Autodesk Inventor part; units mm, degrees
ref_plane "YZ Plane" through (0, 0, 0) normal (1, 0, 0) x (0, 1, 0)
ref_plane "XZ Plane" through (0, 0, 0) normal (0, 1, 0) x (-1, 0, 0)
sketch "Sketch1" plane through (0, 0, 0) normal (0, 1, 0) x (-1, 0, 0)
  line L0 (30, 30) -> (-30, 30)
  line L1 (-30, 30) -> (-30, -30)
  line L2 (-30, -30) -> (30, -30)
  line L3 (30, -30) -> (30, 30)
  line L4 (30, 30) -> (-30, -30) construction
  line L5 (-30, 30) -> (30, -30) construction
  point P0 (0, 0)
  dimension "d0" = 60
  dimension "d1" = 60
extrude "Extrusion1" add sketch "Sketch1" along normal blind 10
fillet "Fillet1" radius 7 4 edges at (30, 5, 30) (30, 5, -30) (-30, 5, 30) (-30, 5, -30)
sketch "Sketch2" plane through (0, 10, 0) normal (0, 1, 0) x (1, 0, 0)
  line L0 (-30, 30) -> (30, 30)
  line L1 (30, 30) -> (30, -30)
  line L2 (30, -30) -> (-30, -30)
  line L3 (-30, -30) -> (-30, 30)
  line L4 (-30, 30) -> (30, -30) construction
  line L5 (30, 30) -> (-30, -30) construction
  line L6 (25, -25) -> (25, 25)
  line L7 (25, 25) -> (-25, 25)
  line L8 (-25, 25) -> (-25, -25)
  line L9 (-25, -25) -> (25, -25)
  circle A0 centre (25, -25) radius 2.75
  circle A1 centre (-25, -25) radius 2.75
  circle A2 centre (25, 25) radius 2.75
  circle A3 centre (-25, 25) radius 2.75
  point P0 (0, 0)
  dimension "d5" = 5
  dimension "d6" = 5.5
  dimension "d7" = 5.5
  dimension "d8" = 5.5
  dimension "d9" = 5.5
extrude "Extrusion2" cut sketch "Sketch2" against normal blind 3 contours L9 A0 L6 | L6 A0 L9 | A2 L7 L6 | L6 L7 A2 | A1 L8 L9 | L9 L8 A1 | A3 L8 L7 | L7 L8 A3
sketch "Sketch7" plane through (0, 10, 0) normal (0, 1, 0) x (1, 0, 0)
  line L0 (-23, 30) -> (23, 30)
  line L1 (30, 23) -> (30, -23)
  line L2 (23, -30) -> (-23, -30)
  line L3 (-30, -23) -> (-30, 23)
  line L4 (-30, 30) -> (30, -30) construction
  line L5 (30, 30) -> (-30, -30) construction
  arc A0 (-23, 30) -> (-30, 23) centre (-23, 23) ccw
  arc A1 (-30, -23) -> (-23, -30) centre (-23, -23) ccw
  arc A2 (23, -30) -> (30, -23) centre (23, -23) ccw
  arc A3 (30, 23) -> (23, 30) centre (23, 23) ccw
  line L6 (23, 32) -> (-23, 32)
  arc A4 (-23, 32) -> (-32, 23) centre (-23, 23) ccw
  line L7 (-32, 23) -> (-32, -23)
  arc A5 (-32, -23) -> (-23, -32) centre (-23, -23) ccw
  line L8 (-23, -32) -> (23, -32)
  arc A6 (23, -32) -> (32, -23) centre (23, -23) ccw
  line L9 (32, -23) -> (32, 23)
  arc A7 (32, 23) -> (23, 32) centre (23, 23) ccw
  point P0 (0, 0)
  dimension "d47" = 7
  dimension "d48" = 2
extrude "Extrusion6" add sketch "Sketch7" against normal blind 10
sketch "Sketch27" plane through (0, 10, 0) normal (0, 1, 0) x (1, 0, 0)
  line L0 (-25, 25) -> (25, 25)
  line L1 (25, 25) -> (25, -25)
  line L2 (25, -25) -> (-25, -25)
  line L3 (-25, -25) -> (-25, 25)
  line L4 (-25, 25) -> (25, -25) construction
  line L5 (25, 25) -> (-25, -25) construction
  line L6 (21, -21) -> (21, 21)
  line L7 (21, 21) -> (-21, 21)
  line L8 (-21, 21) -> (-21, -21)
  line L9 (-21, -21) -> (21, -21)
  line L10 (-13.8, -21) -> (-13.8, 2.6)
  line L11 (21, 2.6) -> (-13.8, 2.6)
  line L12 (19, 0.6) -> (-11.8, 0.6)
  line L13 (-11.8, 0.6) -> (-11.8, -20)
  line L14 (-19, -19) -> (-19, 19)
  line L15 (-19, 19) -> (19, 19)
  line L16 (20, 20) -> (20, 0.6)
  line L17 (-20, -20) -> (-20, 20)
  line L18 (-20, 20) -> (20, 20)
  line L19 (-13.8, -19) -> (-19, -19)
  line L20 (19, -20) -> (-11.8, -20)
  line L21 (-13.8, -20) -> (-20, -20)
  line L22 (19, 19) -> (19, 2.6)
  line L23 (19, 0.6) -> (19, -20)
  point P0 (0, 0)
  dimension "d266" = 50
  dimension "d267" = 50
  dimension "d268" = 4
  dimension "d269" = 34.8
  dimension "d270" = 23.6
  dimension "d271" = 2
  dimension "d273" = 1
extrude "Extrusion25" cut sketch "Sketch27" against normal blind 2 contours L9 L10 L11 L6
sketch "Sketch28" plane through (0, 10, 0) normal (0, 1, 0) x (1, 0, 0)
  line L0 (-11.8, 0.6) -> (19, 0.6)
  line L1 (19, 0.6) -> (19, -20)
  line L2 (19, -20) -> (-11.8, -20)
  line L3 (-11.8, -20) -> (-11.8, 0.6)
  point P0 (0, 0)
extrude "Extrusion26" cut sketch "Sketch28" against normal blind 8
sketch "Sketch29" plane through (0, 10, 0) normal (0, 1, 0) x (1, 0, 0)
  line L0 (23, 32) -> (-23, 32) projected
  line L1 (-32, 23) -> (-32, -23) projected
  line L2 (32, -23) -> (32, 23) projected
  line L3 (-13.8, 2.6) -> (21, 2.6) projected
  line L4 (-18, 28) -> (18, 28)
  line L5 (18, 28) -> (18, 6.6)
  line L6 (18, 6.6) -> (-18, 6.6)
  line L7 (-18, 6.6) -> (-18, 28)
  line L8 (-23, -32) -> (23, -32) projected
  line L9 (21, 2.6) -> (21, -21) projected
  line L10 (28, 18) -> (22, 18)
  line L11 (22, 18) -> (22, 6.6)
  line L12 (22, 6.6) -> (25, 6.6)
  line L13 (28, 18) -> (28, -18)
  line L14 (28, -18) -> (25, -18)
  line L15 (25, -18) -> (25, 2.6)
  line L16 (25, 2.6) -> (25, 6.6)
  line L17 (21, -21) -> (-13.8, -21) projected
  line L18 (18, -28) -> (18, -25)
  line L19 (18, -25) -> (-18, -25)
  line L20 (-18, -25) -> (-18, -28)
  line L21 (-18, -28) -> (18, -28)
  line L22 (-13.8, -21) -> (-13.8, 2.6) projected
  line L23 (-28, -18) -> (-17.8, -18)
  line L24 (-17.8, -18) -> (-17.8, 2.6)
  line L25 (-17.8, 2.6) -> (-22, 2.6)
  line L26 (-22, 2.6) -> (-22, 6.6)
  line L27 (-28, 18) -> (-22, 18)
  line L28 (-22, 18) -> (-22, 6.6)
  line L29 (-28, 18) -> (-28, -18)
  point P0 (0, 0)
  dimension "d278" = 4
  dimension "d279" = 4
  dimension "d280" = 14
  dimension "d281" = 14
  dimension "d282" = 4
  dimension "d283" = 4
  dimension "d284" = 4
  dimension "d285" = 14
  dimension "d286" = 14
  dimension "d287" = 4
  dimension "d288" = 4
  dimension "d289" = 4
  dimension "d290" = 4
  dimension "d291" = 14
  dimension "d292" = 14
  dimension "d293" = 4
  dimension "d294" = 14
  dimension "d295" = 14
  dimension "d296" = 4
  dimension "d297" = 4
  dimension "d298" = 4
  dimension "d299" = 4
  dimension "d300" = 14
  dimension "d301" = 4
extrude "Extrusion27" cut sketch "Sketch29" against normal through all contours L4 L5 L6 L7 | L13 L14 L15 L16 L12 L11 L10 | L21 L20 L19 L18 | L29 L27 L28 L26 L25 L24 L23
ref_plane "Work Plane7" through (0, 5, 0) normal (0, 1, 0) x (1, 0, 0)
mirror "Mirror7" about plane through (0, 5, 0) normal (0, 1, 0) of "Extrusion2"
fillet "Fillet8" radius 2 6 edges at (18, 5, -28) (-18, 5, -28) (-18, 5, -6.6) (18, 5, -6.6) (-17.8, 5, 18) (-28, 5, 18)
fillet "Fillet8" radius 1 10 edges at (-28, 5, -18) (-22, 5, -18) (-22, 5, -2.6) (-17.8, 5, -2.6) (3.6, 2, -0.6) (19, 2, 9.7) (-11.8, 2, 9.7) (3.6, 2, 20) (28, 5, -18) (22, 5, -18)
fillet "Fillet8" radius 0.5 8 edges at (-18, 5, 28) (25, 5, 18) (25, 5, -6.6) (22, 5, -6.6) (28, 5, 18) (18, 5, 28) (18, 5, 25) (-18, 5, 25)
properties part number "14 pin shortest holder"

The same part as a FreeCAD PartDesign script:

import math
import FreeCAD as App
import Part
import Sketcher
Q = App.Units.Quantity


def edges_at(feature, points):
    """Names of the edges that pass closest to the given points."""
    edges = feature.Shape.Edges
    near = lambda p: min(range(len(edges)), key=lambda i: edges[i].distToShape(Part.Vertex(*p))[0])
    return sorted({f"Edge{near(p) + 1}" for p in points})

doc = App.newDocument("Part")
body = doc.addObject("PartDesign::Body", "Body")

# Sketch on XZ plane
sketch1 = body.newObject("Sketcher::SketchObject", "Sketch")
sketch1.AttachmentSupport = (doc.getObject("XZ_Plane"), [""])
sketch1.MapMode = "FlatFace"
sketch1.addGeometry([
    Part.LineSegment(App.Vector(-30, -30, 0), App.Vector(-30, 30, 0)),
    Part.LineSegment(App.Vector(-30, 30, 0), App.Vector(30, 30, 0)),
    Part.LineSegment(App.Vector(30, 30, 0), App.Vector(30, -30, 0)),
    Part.LineSegment(App.Vector(30, -30, 0), App.Vector(-30, -30, 0)),
], False)
sketch1.addConstraint([
    Sketcher.Constraint("Coincident", 0, 2, 1, 1),
    Sketcher.Constraint("Coincident", 1, 2, 2, 1),
    Sketcher.Constraint("Coincident", 2, 2, 3, 1),
    Sketcher.Constraint("Coincident", 3, 2, 0, 1),
    Sketcher.Constraint("Vertical", 0),
    Sketcher.Constraint("Horizontal", 1),
    Sketcher.Constraint("Vertical", 2),
    Sketcher.Constraint("Horizontal", 3),
    Sketcher.Constraint("Symmetric", 0, 2, 2, 2, -1, 1),
    Sketcher.Constraint("Equal", 3, 0),
    Sketcher.Constraint("DistanceX", 1, 1, 1, 2, Q("60 mm")),
])
pad1 = body.newObject("PartDesign::Pad", "Pad")
pad1.Profile = sketch1
pad1.Length = 10
pad1.Reversed = True
doc.recompute()

fillet = body.newObject("PartDesign::Fillet", "Fillet")
fillet.Base = (pad1, edges_at(pad1, [
    (30, 5, 30),
    (30, 5, -30),
    (-30, 5, 30),
    (-30, 5, -30),
]))
fillet.Radius = 7

# Sketch on XZ plane
sketch2 = body.newObject("Sketcher::SketchObject", "Sketch001")
sketch2.AttachmentSupport = (doc.getObject("XZ_Plane"), [""])
sketch2.MapMode = "FlatFace"
sketch2.AttachmentOffset = App.Placement(App.Vector(0, 0, -10), App.Rotation())
sketch2.addGeometry([
    Part.Circle(App.Vector(25, 25, 0), App.Vector(0, 0, 1), 2.8),
    Part.Circle(App.Vector(25, -25, 0), App.Vector(0, 0, 1), 2.8),
    Part.Circle(App.Vector(-25, 25, 0), App.Vector(0, 0, 1), 2.8),
    Part.Circle(App.Vector(-25, -25, 0), App.Vector(0, 0, 1), 2.8),
], False)
sketch2.addConstraint([
    Sketcher.Constraint("Equal", 0, 1),
    Sketcher.Constraint("Equal", 1, 2),
    Sketcher.Constraint("Equal", 2, 3),
    Sketcher.Constraint("Symmetric", 1, 3, 2, 3, -1, 1),
    Sketcher.Constraint("Symmetric", 0, 3, 3, 3, -1, 1),
    Sketcher.Constraint("Symmetric", 0, 3, 2, 3, -2),
    Sketcher.Constraint("Diameter", 0, Q("5.5 mm")),
    Sketcher.Constraint("DistanceX", -1, 1, 0, 3, Q("25 mm")),
    Sketcher.Constraint("DistanceY", -1, 1, 0, 3, Q("25 mm")),
])
pocket1 = body.newObject("PartDesign::Pocket", "Pocket")
pocket1.Profile = sketch2
pocket1.Length = 3
pocket1.Reversed = True

# Sketch on XZ plane
sketch3 = body.newObject("Sketcher::SketchObject", "Sketch002")
sketch3.AttachmentSupport = (doc.getObject("XZ_Plane"), [""])
sketch3.MapMode = "FlatFace"
sketch3.AttachmentOffset = App.Placement(App.Vector(0, 0, -10), App.Rotation())
sketch3.addGeometry([
    Part.ArcOfCircle(Part.Circle(App.Vector(23, -23, 0), App.Vector(0, 0, 1), 9), math.radians(-90), math.radians(0)),  # 0
    Part.LineSegment(App.Vector(23, -32, 0), App.Vector(-23, -32, 0)),  # 1
    Part.ArcOfCircle(Part.Circle(App.Vector(-23, -23, 0), App.Vector(0, 0, 1), 9), math.radians(180), math.radians(270)),  # 2
    Part.LineSegment(App.Vector(-32, -23, 0), App.Vector(-32, 23, 0)),  # 3
    Part.ArcOfCircle(Part.Circle(App.Vector(-23, 23, 0), App.Vector(0, 0, 1), 9), math.radians(90), math.radians(180)),  # 4
    Part.LineSegment(App.Vector(-23, 32, 0), App.Vector(23, 32, 0)),  # 5
    Part.ArcOfCircle(Part.Circle(App.Vector(23, 23, 0), App.Vector(0, 0, 1), 9), math.radians(0), math.radians(90)),  # 6
    Part.LineSegment(App.Vector(32, 23, 0), App.Vector(32, -23, 0)),  # 7
    Part.ArcOfCircle(Part.Circle(App.Vector(-23, -23, 0), App.Vector(0, 0, 1), 7), math.radians(180), math.radians(270)),  # 8
    Part.LineSegment(App.Vector(-23, -30, 0), App.Vector(23, -30, 0)),  # 9
    Part.ArcOfCircle(Part.Circle(App.Vector(23, -23, 0), App.Vector(0, 0, 1), 7), math.radians(-90), math.radians(0)),  # 10
    Part.LineSegment(App.Vector(30, -23, 0), App.Vector(30, 23, 0)),  # 11
    Part.ArcOfCircle(Part.Circle(App.Vector(23, 23, 0), App.Vector(0, 0, 1), 7), math.radians(0), math.radians(90)),  # 12
    Part.LineSegment(App.Vector(23, 30, 0), App.Vector(-23, 30, 0)),  # 13
    Part.ArcOfCircle(Part.Circle(App.Vector(-23, 23, 0), App.Vector(0, 0, 1), 7), math.radians(90), math.radians(180)),  # 14
    Part.LineSegment(App.Vector(-30, 23, 0), App.Vector(-30, -23, 0)),  # 15
], False)
sketch3.addConstraint([
    Sketcher.Constraint("Tangent", 0, 1, 1, 1),
    Sketcher.Constraint("Tangent", 1, 2, 2, 2),
    Sketcher.Constraint("Tangent", 2, 1, 3, 1),
    Sketcher.Constraint("Tangent", 3, 2, 4, 2),
    Sketcher.Constraint("Tangent", 4, 1, 5, 1),
    Sketcher.Constraint("Tangent", 5, 2, 6, 2),
    Sketcher.Constraint("Tangent", 6, 1, 7, 1),
    Sketcher.Constraint("Tangent", 7, 2, 0, 2),
    Sketcher.Constraint("Tangent", 8, 2, 9, 1),
    Sketcher.Constraint("Tangent", 9, 2, 10, 1),
    Sketcher.Constraint("Tangent", 10, 2, 11, 1),
    Sketcher.Constraint("Tangent", 11, 2, 12, 1),
    Sketcher.Constraint("Tangent", 12, 2, 13, 1),
    Sketcher.Constraint("Tangent", 13, 2, 14, 1),
    Sketcher.Constraint("Tangent", 14, 2, 15, 1),
    Sketcher.Constraint("Tangent", 15, 2, 8, 1),
    Sketcher.Constraint("Horizontal", 1),
    Sketcher.Constraint("Vertical", 3),
    Sketcher.Constraint("Horizontal", 5),
    Sketcher.Constraint("Vertical", 7),
    Sketcher.Constraint("Horizontal", 9),
    Sketcher.Constraint("Vertical", 11),
    Sketcher.Constraint("Horizontal", 13),
    Sketcher.Constraint("Vertical", 15),
    Sketcher.Constraint("Coincident", 8, 3, 2, 3),
    Sketcher.Constraint("Coincident", 10, 3, 0, 3),
    Sketcher.Constraint("Coincident", 12, 3, 6, 3),
    Sketcher.Constraint("Equal", 0, 2),
    Sketcher.Constraint("Equal", 2, 4),
    Sketcher.Constraint("Equal", 4, 6),
    Sketcher.Constraint("Equal", 12, 14),
    Sketcher.Constraint("Symmetric", 0, 3, 4, 3, -1, 1),
    Sketcher.Constraint("Equal", 13, 3),
    Sketcher.Constraint("Radius", 8, Q("7 mm")),
    Sketcher.Constraint("Radius", 0, Q("9 mm")),
    Sketcher.Constraint("DistanceX", 1, 2, 1, 1, Q("46 mm")),
])
pad2 = body.newObject("PartDesign::Pad", "Pad001")
pad2.Profile = sketch3
pad2.Length = 10

# Sketch on XZ plane
sketch4 = body.newObject("Sketcher::SketchObject", "Sketch003")
sketch4.AttachmentSupport = (doc.getObject("XZ_Plane"), [""])
sketch4.MapMode = "FlatFace"
sketch4.AttachmentOffset = App.Placement(App.Vector(0, 0, -10), App.Rotation())
sketch4.addGeometry([
    Part.LineSegment(App.Vector(-14, 21, 0), App.Vector(21, 21, 0)),  # 0
    Part.LineSegment(App.Vector(21, 21, 0), App.Vector(21, -3, 0)),  # 1
    Part.LineSegment(App.Vector(21, -3, 0), App.Vector(-14, -3, 0)),  # 2
    Part.LineSegment(App.Vector(-14, -3, 0), App.Vector(-14, 21, 0)),  # 3
    Part.LineSegment(App.Vector(-12, -1, 0), App.Vector(19, -1, 0)),  # 4
    Part.LineSegment(App.Vector(19, -1, 0), App.Vector(19, 20, 0)),  # 5
    Part.LineSegment(App.Vector(19, 20, 0), App.Vector(-12, 20, 0)),  # 6
    Part.LineSegment(App.Vector(-12, 20, 0), App.Vector(-12, -1, 0)),  # 7
], False)
sketch4.addConstraint([
    Sketcher.Constraint("Coincident", 0, 2, 1, 1),
    Sketcher.Constraint("Coincident", 1, 2, 2, 1),
    Sketcher.Constraint("Coincident", 2, 2, 3, 1),
    Sketcher.Constraint("Coincident", 3, 2, 0, 1),
    Sketcher.Constraint("Coincident", 4, 2, 5, 1),
    Sketcher.Constraint("Coincident", 5, 2, 6, 1),
    Sketcher.Constraint("Coincident", 6, 2, 7, 1),
    Sketcher.Constraint("Coincident", 7, 2, 4, 1),
    Sketcher.Constraint("Horizontal", 0),
    Sketcher.Constraint("Vertical", 1),
    Sketcher.Constraint("Horizontal", 2),
    Sketcher.Constraint("Vertical", 3),
    Sketcher.Constraint("Horizontal", 4),
    Sketcher.Constraint("Vertical", 5),
    Sketcher.Constraint("Horizontal", 6),
    Sketcher.Constraint("Vertical", 7),
    Sketcher.Constraint("DistanceX", 0, 1, 0, 2, Q("34.8 mm")),
    Sketcher.Constraint("DistanceY", 1, 2, 1, 1, Q("23.6 mm")),
    Sketcher.Constraint("DistanceX", 4, 2, 1, 2, Q("2 mm")),
    Sketcher.Constraint("DistanceY", 1, 2, 4, 2, Q("2 mm")),
    Sketcher.Constraint("DistanceY", 5, 2, 0, 2, Q("1 mm")),
    Sketcher.Constraint("DistanceX", 3, 2, 6, 2, Q("2 mm")),
    Sketcher.Constraint("DistanceX", -1, 1, 0, 2, Q("21 mm")),
    Sketcher.Constraint("DistanceY", -1, 1, 0, 2, Q("21 mm")),
])
pocket2 = body.newObject("PartDesign::Pocket", "Pocket001")
pocket2.Profile = sketch4
pocket2.Length = 2
pocket2.Reversed = True

# Sketch on XZ plane
sketch5 = body.newObject("Sketcher::SketchObject", "Sketch004")
sketch5.AttachmentSupport = (doc.getObject("XZ_Plane"), [""])
sketch5.MapMode = "FlatFace"
sketch5.AttachmentOffset = App.Placement(App.Vector(0, 0, -10), App.Rotation())
sketch5.addGeometry([
    Part.LineSegment(App.Vector(19, -1, 0), App.Vector(-12, -1, 0)),
    Part.LineSegment(App.Vector(-12, -1, 0), App.Vector(-12, 20, 0)),
    Part.LineSegment(App.Vector(-12, 20, 0), App.Vector(19, 20, 0)),
    Part.LineSegment(App.Vector(19, 20, 0), App.Vector(19, -1, 0)),
], False)
sketch5.addConstraint([
    Sketcher.Constraint("Coincident", 0, 2, 1, 1),
    Sketcher.Constraint("Coincident", 1, 2, 2, 1),
    Sketcher.Constraint("Coincident", 2, 2, 3, 1),
    Sketcher.Constraint("Coincident", 3, 2, 0, 1),
    Sketcher.Constraint("Horizontal", 0),
    Sketcher.Constraint("Vertical", 1),
    Sketcher.Constraint("Horizontal", 2),
    Sketcher.Constraint("Vertical", 3),
    Sketcher.Constraint("DistanceX", 0, 2, 0, 1, Q("30.8 mm")),
    Sketcher.Constraint("DistanceY", 1, 1, 1, 2, Q("20.6 mm")),
    Sketcher.Constraint("DistanceY", -1, 1, 1, 2, Q("20 mm")),
    Sketcher.Constraint("DistanceX", -1, 1, 2, 2, Q("19 mm")),
])
pocket3 = body.newObject("PartDesign::Pocket", "Pocket002")
pocket3.Profile = sketch5
pocket3.Length = 8
pocket3.Reversed = True

# Sketch on XZ plane
sketch6 = body.newObject("Sketcher::SketchObject", "Sketch005")
sketch6.AttachmentSupport = (doc.getObject("XZ_Plane"), [""])
sketch6.MapMode = "FlatFace"
sketch6.AttachmentOffset = App.Placement(App.Vector(0, 0, -10), App.Rotation())
sketch6.addGeometry([
    Part.LineSegment(App.Vector(18, -28, 0), App.Vector(-18, -28, 0)),  # 0
    Part.LineSegment(App.Vector(-18, -28, 0), App.Vector(-18, -6.6, 0)),  # 1
    Part.LineSegment(App.Vector(-18, -6.6, 0), App.Vector(18, -6.6, 0)),  # 2
    Part.LineSegment(App.Vector(18, -6.6, 0), App.Vector(18, -28, 0)),  # 3
    Part.LineSegment(App.Vector(28, 18, 0), App.Vector(28, -18, 0)),  # 4
    Part.LineSegment(App.Vector(28, -18, 0), App.Vector(22, -18, 0)),  # 5
    Part.LineSegment(App.Vector(22, -18, 0), App.Vector(22, -6.6, 0)),  # 6
    Part.LineSegment(App.Vector(22, -6.6, 0), App.Vector(25, -6.6, 0)),  # 7
    Part.LineSegment(App.Vector(25, -6.6, 0), App.Vector(25, 18, 0)),  # 8
    Part.LineSegment(App.Vector(25, 18, 0), App.Vector(28, 18, 0)),  # 9
    Part.LineSegment(App.Vector(-18, 28, 0), App.Vector(18, 28, 0)),  # 10
    Part.LineSegment(App.Vector(18, 28, 0), App.Vector(18, 25, 0)),  # 11
    Part.LineSegment(App.Vector(18, 25, 0), App.Vector(-18, 25, 0)),  # 12
    Part.LineSegment(App.Vector(-18, 25, 0), App.Vector(-18, 28, 0)),  # 13
    Part.LineSegment(App.Vector(-28, -18, 0), App.Vector(-28, 18, 0)),  # 14
    Part.LineSegment(App.Vector(-28, 18, 0), App.Vector(-17.8, 18, 0)),  # 15
    Part.LineSegment(App.Vector(-17.8, 18, 0), App.Vector(-17.8, -2.6, 0)),  # 16
    Part.LineSegment(App.Vector(-17.8, -2.6, 0), App.Vector(-22, -2.6, 0)),  # 17
    Part.LineSegment(App.Vector(-22, -2.6, 0), App.Vector(-22, -18, 0)),  # 18
    Part.LineSegment(App.Vector(-22, -18, 0), App.Vector(-28, -18, 0)),  # 19
], False)
sketch6.addConstraint([
    Sketcher.Constraint("Coincident", 0, 2, 1, 1),
    Sketcher.Constraint("Coincident", 1, 2, 2, 1),
    Sketcher.Constraint("Coincident", 2, 2, 3, 1),
    Sketcher.Constraint("Coincident", 3, 2, 0, 1),
    Sketcher.Constraint("Coincident", 4, 2, 5, 1),
    Sketcher.Constraint("Coincident", 5, 2, 6, 1),
    Sketcher.Constraint("Coincident", 6, 2, 7, 1),
    Sketcher.Constraint("Coincident", 7, 2, 8, 1),
    Sketcher.Constraint("Coincident", 8, 2, 9, 1),
    Sketcher.Constraint("Coincident", 9, 2, 4, 1),
    Sketcher.Constraint("Coincident", 10, 2, 11, 1),
    Sketcher.Constraint("Coincident", 11, 2, 12, 1),
    Sketcher.Constraint("Coincident", 12, 2, 13, 1),
    Sketcher.Constraint("Coincident", 13, 2, 10, 1),
    Sketcher.Constraint("Coincident", 14, 2, 15, 1),
    Sketcher.Constraint("Coincident", 15, 2, 16, 1),
    Sketcher.Constraint("Coincident", 16, 2, 17, 1),
    Sketcher.Constraint("Coincident", 17, 2, 18, 1),
    Sketcher.Constraint("Coincident", 18, 2, 19, 1),
    Sketcher.Constraint("Coincident", 19, 2, 14, 1),
    Sketcher.Constraint("Horizontal", 0),
    Sketcher.Constraint("Vertical", 1),
    Sketcher.Constraint("Horizontal", 2),
    Sketcher.Constraint("Vertical", 3),
    Sketcher.Constraint("Vertical", 4),
    Sketcher.Constraint("Horizontal", 5),
    Sketcher.Constraint("Vertical", 6),
    Sketcher.Constraint("Horizontal", 7),
    Sketcher.Constraint("Vertical", 8),
    Sketcher.Constraint("Horizontal", 9),
    Sketcher.Constraint("Horizontal", 10),
    Sketcher.Constraint("Vertical", 11),
    Sketcher.Constraint("Horizontal", 12),
    Sketcher.Constraint("Vertical", 13),
    Sketcher.Constraint("Vertical", 14),
    Sketcher.Constraint("Horizontal", 15),
    Sketcher.Constraint("Vertical", 16),
    Sketcher.Constraint("Horizontal", 17),
    Sketcher.Constraint("Vertical", 18),
    Sketcher.Constraint("Horizontal", 19),
    Sketcher.Constraint("Symmetric", 0, 2, 10, 2, -1, 1),
    Sketcher.Constraint("Symmetric", 4, 2, 14, 2, -1, 1),
    Sketcher.Constraint("Symmetric", 5, 2, 18, 2, -2),
    Sketcher.Constraint("Horizontal", 2, 2, 6, 2),
    Sketcher.Constraint("Horizontal", 9, 2, 14, 2),
    Sketcher.Constraint("Vertical", 3, 2, 10, 2),
    Sketcher.Constraint("Vertical", 1, 2, 12, 2),
    Sketcher.Constraint("Equal", 7, 9),
    Sketcher.Constraint("Equal", 12, 4),
    Sketcher.Constraint("Equal", 9, 11),
    Sketcher.Constraint("DistanceX", 3, 2, 5, 2, Q("4 mm")),
    Sketcher.Constraint("DistanceY", 1, 2, 16, 2, Q("4 mm")),
    Sketcher.Constraint("DistanceX", 0, 2, 0, 1, Q("36 mm")),
    Sketcher.Constraint("DistanceX", 5, 2, 5, 1, Q("6 mm")),
    Sketcher.Constraint("DistanceX", 15, 1, 15, 2, Q("10.2 mm")),
    Sketcher.Constraint("DistanceY", 1, 1, 1, 2, Q("21.4 mm")),
    Sketcher.Constraint("DistanceY", 6, 1, 6, 2, Q("11.4 mm")),
])
pocket4 = body.newObject("PartDesign::Pocket", "Pocket003")
pocket4.Profile = sketch6
pocket4.Type = "ThroughAll"
pocket4.Reversed = True
doc.recompute()

datumplane = body.newObject("PartDesign::Plane", "DatumPlane")
datumplane.AttachmentSupport = (doc.getObject("XZ_Plane"), [""])
datumplane.MapMode = "FlatFace"
datumplane.AttachmentOffset = App.Placement(App.Vector(0, 0, -5), App.Rotation())
mirrored = body.newObject("PartDesign::Mirrored", "Mirrored")
mirrored.Originals = [pocket1]
mirrored.MirrorPlane = (datumplane, [""])
body.Tip = mirrored
doc.recompute()

fillet2 = body.newObject("PartDesign::Fillet", "Fillet001")
fillet2.Base = (mirrored, edges_at(mirrored, [
    (18, 5, -28),
    (-18, 5, -28),
    (-18, 5, -6.6),
    (18, 5, -6.6),
    (-17.8, 5, 18),
    (-28, 5, 18),
]))
fillet2.Radius = 2
doc.recompute()

fillet3 = body.newObject("PartDesign::Fillet", "Fillet002")
fillet3.Base = (fillet2, edges_at(fillet2, [
    (-28, 5, -18),
    (-22, 5, -18),
    (-22, 5, -2.6),
    (-17.8, 5, -2.6),
    (3.6, 2, -0.6),
    (19, 2, 9.7),
    (-11.8, 2, 9.7),
    (3.6, 2, 20),
    (28, 5, -18),
    (22, 5, -18),
]))
fillet3.Radius = 1
doc.recompute()

fillet4 = body.newObject("PartDesign::Fillet", "Fillet003")
fillet4.Base = (fillet3, edges_at(fillet3, [
    (-18, 5, 28),
    (25, 5, 18),
    (25, 5, -6.6),
    (22, 5, -6.6),
    (28, 5, 18),
    (18, 5, 28),
    (18, 5, 25),
    (-18, 5, 25),
]))
fillet4.Radius = 0.5

doc.recompute()
